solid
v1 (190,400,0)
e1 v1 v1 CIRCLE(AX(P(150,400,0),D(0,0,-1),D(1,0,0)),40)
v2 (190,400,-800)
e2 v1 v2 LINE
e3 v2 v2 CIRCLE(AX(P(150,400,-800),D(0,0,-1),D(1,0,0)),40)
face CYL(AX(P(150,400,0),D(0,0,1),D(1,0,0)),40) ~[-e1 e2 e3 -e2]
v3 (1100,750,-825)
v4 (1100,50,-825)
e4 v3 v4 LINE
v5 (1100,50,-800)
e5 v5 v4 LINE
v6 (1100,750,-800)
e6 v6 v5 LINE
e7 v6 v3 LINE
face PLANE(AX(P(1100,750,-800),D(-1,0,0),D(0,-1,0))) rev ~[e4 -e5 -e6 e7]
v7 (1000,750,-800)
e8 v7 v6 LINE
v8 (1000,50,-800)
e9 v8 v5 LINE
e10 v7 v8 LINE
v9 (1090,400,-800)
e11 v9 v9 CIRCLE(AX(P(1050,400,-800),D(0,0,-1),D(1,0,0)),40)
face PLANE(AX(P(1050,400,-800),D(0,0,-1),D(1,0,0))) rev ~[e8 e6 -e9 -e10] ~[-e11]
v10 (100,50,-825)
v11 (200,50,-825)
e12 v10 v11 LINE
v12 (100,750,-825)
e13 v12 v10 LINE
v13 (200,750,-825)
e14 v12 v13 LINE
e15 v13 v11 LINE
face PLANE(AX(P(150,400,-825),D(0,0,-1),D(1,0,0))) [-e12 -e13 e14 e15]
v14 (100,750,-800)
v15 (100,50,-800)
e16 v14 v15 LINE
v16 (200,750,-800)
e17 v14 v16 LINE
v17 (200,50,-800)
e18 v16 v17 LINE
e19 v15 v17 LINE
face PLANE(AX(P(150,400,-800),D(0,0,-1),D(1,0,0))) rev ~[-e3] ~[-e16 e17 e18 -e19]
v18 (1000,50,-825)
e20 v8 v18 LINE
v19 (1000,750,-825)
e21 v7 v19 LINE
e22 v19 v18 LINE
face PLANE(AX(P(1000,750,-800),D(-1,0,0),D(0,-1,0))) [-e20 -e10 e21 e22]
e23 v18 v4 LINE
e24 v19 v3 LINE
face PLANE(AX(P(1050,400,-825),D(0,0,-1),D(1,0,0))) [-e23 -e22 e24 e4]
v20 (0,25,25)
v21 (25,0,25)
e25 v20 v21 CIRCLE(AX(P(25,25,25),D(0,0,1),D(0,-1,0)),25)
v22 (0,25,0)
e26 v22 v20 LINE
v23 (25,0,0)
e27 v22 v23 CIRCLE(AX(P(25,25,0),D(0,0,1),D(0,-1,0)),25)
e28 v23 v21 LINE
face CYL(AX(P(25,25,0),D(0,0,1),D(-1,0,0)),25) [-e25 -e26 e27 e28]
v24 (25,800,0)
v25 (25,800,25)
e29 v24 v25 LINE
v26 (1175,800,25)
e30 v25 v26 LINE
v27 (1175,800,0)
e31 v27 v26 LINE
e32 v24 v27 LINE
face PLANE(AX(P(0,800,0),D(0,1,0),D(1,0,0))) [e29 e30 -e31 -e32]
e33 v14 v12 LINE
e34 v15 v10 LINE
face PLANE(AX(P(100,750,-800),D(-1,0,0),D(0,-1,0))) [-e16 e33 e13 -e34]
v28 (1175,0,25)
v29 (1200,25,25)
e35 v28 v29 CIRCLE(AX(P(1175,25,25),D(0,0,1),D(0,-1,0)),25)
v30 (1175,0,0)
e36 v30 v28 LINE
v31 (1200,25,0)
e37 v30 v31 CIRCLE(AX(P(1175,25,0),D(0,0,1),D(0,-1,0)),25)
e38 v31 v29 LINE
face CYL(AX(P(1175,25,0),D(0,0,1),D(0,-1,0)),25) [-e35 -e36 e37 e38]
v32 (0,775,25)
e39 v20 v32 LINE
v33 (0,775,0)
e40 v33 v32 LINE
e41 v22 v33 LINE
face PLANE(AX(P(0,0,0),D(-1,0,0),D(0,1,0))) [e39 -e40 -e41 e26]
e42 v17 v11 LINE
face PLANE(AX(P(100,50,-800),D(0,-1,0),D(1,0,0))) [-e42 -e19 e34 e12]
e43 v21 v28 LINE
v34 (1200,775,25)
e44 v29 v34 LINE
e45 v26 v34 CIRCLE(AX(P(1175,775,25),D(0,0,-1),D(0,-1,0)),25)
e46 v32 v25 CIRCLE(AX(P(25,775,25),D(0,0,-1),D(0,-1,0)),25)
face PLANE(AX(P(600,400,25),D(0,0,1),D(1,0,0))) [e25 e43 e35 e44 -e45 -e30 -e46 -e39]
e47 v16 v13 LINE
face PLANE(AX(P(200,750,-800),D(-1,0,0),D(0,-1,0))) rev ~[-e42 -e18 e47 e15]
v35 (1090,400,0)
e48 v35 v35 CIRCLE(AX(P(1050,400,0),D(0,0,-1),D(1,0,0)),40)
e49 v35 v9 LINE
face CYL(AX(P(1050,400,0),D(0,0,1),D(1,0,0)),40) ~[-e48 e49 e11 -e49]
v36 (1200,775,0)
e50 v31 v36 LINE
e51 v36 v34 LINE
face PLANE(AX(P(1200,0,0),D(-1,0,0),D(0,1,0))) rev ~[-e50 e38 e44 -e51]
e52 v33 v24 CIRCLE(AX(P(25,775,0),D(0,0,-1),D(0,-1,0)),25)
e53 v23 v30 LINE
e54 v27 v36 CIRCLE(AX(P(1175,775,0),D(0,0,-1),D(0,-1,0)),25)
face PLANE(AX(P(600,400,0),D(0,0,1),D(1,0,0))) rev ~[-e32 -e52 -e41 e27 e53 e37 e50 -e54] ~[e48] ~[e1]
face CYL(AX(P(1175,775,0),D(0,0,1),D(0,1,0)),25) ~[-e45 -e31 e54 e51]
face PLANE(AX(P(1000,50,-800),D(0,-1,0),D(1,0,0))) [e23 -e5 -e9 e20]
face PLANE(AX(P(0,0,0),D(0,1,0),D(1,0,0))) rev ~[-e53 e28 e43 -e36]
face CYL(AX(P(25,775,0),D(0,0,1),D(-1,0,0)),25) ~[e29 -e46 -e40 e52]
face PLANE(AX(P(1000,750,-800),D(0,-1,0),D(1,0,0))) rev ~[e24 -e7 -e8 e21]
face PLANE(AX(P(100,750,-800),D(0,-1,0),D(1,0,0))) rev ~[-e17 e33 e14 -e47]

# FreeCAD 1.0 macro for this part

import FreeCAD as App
import Part
import Sketcher
from FreeCAD import Vector


def edges_at(feature, points):
    """Names of the edges that pass closest to the given points."""
    edges = feature.Shape.Edges
    near = lambda p: min(range(len(edges)), key=lambda i: edges[i].distToShape(Part.Vertex(*p))[0])
    return sorted({f"Edge{near(p) + 1}" for p in points})


def add_polygon(sketch, points):
    """Adds a closed chain of lines whose ends are joined by coincident constraints."""
    first, n = sketch.GeometryCount, len(points)
    for a, b in zip(points, points[1:] + points[:1]):
        sketch.addGeometry(Part.LineSegment(App.Vector(*a, 0), App.Vector(*b, 0)), False)
    for i in range(n):
        sketch.addConstraint(Sketcher.Constraint("Coincident", first + i, 2, first + (i + 1) % n, 1))

doc = App.newDocument("Part")
body = doc.addObject("PartDesign::Body", "Body")

sketch1 = body.newObject("Sketcher::SketchObject", "Sketch")
sketch1.AttachmentSupport = (doc.getObject("XY_Plane"), [""])
sketch1.MapMode = "FlatFace"
add_polygon(sketch1, [(0, 800), (0, 0), (1200, 0), (1200, 800)])
sketch1.addConstraint(Sketcher.Constraint("Vertical", 0))
sketch1.addConstraint(Sketcher.Constraint("Horizontal", 1))
sketch1.addConstraint(Sketcher.Constraint("Vertical", 2))
sketch1.addConstraint(Sketcher.Constraint("Horizontal", 3))
sketch1.addConstraint(Sketcher.Constraint("Coincident", 0, 2, -1, 1))
sketch1.addConstraint(Sketcher.Constraint("DistanceX", 1, 1, 1, 2, 1200.0))
sketch1.addConstraint(Sketcher.Constraint("DistanceY", 0, 2, 0, 1, 800.0))
pad1 = body.newObject("PartDesign::Pad", "Pad")
pad1.Profile = sketch1
pad1.Length = 25

sketch2 = body.newObject("Sketcher::SketchObject", "Sketch001")
sketch2.AttachmentSupport = (doc.getObject("XY_Plane"), [""])
sketch2.MapMode = "FlatFace"
sketch2.addGeometry(Part.Circle(Vector(150, 400, 0), Vector(0, 0, 1), 40), False)
sketch2.addGeometry(Part.Circle(Vector(1050, 400, 0), Vector(0, 0, 1), 40), False)
sketch2.addConstraint(Sketcher.Constraint("Equal", 0, 1))
sketch2.addConstraint(Sketcher.Constraint("Horizontal", 0, 3, 1, 3))
sketch2.addConstraint(Sketcher.Constraint("Diameter", 0, 80.0))
sketch2.addConstraint(Sketcher.Constraint("DistanceX", -1, 1, 0, 3, 150.0))
sketch2.addConstraint(Sketcher.Constraint("DistanceY", -1, 1, 0, 3, 400.0))
sketch2.addConstraint(Sketcher.Constraint("DistanceX", -1, 1, 1, 3, 1050.0))
pad2 = body.newObject("PartDesign::Pad", "Pad001")
pad2.Profile = sketch2
pad2.Length = 800
pad2.Reversed = True

sketch3 = body.newObject("Sketcher::SketchObject", "Sketch002")
sketch3.AttachmentSupport = (doc.getObject("XY_Plane"), [""])
sketch3.MapMode = "FlatFace"
sketch3.AttachmentOffset = App.Placement(Vector(0, 0, -800), App.Rotation())
add_polygon(sketch3, [(100, 50), (100, 750), (200, 750), (200, 50)])
sketch3.addConstraint(Sketcher.Constraint("Vertical", 0))
sketch3.addConstraint(Sketcher.Constraint("Horizontal", 1))
sketch3.addConstraint(Sketcher.Constraint("Vertical", 2))
sketch3.addConstraint(Sketcher.Constraint("Horizontal", 3))
sketch3.addConstraint(Sketcher.Constraint("DistanceX", 1, 1, 1, 2, 100.0))
sketch3.addConstraint(Sketcher.Constraint("DistanceY", 0, 1, 0, 2, 700.0))
sketch3.addConstraint(Sketcher.Constraint("DistanceX", -1, 1, 0, 2, 100.0))
sketch3.addConstraint(Sketcher.Constraint("DistanceY", -1, 1, 0, 2, 750.0))
pad3 = body.newObject("PartDesign::Pad", "Pad002")
pad3.Profile = sketch3
pad3.Length = 25
pad3.Reversed = True

sketch4 = body.newObject("Sketcher::SketchObject", "Sketch003")
sketch4.AttachmentSupport = (doc.getObject("XY_Plane"), [""])
sketch4.MapMode = "FlatFace"
sketch4.AttachmentOffset = App.Placement(Vector(0, 0, -800), App.Rotation())
add_polygon(sketch4, [(1000, 50), (1000, 750), (1100, 750), (1100, 50)])
sketch4.addConstraint(Sketcher.Constraint("Vertical", 0))
sketch4.addConstraint(Sketcher.Constraint("Horizontal", 1))
sketch4.addConstraint(Sketcher.Constraint("Vertical", 2))
sketch4.addConstraint(Sketcher.Constraint("Horizontal", 3))
sketch4.addConstraint(Sketcher.Constraint("DistanceX", 1, 1, 1, 2, 100.0))
sketch4.addConstraint(Sketcher.Constraint("DistanceY", 0, 1, 0, 2, 700.0))
sketch4.addConstraint(Sketcher.Constraint("DistanceX", -1, 1, 0, 2, 1000.0))
sketch4.addConstraint(Sketcher.Constraint("DistanceY", -1, 1, 0, 2, 750.0))
pad4 = body.newObject("PartDesign::Pad", "Pad003")
pad4.Profile = sketch4
pad4.Length = 25
pad4.Reversed = True
doc.recompute()

fillet = body.newObject("PartDesign::Fillet", "Fillet")
fillet.Base = (pad4, edges_at(pad4, [
    (1200, 0, 12.5),
    (1200, 800, 12.5),
    (0, 0, 12.5),
    (0, 800, 12.5),
]))
fillet.Radius = 25
body2 = doc.addObject("PartDesign::Body", "Body001")
doc.recompute()

body2.BaseFeature = body
doc.recompute()
body.Visibility = False

doc.recompute()
